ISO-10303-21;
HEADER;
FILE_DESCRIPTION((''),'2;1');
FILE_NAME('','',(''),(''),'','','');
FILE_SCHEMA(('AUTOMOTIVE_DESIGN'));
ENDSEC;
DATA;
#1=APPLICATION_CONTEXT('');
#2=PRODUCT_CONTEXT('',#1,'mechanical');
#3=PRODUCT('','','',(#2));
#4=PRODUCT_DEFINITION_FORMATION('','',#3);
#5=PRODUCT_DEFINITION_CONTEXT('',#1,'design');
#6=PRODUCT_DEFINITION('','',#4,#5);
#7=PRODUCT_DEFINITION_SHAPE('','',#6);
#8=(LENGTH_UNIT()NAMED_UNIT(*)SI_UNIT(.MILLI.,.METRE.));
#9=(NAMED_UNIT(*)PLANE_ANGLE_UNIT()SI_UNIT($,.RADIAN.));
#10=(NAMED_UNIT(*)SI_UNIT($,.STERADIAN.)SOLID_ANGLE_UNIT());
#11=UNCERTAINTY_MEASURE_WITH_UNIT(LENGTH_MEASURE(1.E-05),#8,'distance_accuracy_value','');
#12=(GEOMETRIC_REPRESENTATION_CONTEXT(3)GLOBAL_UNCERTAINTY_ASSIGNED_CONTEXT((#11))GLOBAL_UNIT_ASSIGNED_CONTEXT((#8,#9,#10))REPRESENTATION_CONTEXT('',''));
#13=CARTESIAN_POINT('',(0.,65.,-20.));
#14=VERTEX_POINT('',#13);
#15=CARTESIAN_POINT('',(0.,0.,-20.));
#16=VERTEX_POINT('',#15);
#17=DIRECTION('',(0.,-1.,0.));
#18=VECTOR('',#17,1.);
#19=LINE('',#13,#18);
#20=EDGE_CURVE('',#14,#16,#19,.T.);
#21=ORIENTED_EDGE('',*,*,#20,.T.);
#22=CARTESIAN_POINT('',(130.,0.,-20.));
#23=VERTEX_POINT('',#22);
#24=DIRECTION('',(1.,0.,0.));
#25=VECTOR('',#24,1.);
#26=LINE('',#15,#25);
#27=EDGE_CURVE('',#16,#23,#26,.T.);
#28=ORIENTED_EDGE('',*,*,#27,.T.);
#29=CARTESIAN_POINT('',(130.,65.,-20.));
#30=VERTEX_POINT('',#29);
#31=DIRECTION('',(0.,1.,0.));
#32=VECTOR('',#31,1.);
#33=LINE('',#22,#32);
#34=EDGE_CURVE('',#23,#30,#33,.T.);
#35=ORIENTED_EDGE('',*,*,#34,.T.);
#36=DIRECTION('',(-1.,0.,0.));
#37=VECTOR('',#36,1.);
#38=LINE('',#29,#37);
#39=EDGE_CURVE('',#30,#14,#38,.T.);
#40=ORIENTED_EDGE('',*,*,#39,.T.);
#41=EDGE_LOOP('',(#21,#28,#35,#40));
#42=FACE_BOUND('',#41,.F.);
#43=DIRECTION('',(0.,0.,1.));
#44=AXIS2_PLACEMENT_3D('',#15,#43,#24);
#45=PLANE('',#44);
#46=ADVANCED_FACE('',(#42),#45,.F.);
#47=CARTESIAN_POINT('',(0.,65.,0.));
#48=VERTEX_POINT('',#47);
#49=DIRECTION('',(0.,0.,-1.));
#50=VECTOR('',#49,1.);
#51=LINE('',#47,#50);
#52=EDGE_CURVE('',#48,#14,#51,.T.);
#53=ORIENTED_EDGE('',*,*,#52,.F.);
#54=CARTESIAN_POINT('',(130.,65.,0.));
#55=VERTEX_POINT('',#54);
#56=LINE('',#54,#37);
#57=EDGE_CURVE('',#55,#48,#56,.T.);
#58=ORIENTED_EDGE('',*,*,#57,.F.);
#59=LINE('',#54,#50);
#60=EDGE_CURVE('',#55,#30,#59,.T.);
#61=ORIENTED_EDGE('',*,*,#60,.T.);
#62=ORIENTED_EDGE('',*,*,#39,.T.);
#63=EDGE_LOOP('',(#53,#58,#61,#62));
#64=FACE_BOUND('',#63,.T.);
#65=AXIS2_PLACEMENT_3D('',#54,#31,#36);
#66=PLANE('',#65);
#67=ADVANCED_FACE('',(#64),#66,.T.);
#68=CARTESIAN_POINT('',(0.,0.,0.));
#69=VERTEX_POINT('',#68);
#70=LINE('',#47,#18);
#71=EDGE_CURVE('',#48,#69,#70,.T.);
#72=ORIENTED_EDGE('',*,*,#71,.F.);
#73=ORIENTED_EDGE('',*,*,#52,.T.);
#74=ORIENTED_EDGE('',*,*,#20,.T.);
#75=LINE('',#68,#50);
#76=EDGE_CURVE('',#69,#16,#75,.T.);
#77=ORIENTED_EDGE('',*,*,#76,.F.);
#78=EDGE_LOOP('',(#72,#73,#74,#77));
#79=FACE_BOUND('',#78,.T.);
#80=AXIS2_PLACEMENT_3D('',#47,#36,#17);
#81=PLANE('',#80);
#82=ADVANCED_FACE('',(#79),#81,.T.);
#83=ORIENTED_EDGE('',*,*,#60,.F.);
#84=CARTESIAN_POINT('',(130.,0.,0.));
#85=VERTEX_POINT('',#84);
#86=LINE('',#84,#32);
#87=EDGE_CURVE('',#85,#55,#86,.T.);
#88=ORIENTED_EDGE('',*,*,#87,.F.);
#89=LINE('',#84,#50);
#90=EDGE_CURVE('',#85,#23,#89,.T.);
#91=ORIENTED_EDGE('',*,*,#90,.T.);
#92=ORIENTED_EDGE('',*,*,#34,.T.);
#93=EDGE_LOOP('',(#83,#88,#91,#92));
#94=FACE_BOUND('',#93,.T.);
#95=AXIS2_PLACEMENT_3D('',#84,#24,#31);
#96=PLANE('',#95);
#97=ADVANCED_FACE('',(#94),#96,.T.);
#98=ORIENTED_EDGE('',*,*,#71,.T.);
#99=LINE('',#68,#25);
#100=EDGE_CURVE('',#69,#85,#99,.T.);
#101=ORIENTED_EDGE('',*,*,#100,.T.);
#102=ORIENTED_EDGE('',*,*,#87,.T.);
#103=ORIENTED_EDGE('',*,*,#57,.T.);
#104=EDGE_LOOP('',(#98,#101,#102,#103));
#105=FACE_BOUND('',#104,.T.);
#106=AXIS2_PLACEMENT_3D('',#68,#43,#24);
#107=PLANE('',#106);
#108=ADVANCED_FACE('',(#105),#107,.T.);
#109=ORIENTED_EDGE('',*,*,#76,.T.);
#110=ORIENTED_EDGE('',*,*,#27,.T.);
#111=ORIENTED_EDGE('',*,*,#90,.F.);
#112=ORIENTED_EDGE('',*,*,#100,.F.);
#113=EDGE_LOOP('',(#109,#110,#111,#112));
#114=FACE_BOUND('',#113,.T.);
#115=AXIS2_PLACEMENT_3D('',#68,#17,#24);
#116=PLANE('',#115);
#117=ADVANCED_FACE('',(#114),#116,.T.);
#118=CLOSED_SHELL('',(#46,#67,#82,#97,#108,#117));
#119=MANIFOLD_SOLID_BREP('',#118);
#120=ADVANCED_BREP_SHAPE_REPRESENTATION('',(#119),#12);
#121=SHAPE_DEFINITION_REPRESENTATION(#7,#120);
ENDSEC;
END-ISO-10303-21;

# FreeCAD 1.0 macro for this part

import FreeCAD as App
import Part
import Sketcher
from FreeCAD import Vector


def add_polygon(sketch, points):
    """Adds a closed chain of lines whose ends are joined by coincident constraints."""
    first, n = sketch.GeometryCount, len(points)
    for a, b in zip(points, points[1:] + points[:1]):
        sketch.addGeometry(Part.LineSegment(App.Vector(*a, 0), App.Vector(*b, 0)), False)
    for i in range(n):
        sketch.addConstraint(Sketcher.Constraint("Coincident", first + i, 2, first + (i + 1) % n, 1))

doc = App.newDocument("Part")
body = doc.addObject("PartDesign::Body", "Body")

# Sketch on XY plane
sketch1 = body.newObject("Sketcher::SketchObject", "Sketch")
sketch1.AttachmentSupport = (doc.getObject("XY_Plane"), [""])
sketch1.MapMode = "FlatFace"
add_polygon(sketch1, [(0, 65), (0, 0), (130, 0), (130, 65)])  # lines 0-3
sketch1.addConstraint([
    Sketcher.Constraint("Vertical", 0),
    Sketcher.Constraint("Horizontal", 1),
    Sketcher.Constraint("Vertical", 2),
    Sketcher.Constraint("Horizontal", 3),
    Sketcher.Constraint("Coincident", 0, 2, -1, 1),
    Sketcher.Constraint("DistanceX", 1, 1, 1, 2, 130.0),
    Sketcher.Constraint("DistanceY", 0, 2, 0, 1, 65.0),
])
pad1 = body.newObject("PartDesign::Pad", "Pad")
pad1.Profile = sketch1
pad1.Length = 20
pad1.Reversed = True

doc.recompute()
